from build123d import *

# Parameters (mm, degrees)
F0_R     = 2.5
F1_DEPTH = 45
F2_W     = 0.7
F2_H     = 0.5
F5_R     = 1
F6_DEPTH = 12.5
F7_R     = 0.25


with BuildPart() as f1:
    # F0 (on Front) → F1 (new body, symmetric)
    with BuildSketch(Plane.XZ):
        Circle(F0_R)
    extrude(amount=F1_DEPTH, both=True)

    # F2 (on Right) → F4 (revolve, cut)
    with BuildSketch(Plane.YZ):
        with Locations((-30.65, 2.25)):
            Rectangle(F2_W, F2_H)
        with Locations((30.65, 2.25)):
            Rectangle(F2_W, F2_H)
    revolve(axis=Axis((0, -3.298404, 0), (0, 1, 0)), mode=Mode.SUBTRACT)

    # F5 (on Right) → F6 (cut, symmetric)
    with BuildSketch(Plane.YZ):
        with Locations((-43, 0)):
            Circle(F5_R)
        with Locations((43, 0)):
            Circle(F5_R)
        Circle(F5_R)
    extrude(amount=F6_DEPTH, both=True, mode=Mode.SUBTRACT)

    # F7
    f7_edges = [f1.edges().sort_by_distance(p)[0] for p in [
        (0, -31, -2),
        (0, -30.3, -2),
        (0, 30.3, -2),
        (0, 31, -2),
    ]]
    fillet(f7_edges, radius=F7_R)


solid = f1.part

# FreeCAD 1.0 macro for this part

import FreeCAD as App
import Part
import Sketcher

V = App.Vector
Q = App.Units.Quantity


def edges_at(feature, points):
    """Names of the edges that pass closest to the given points."""
    edges = feature.Shape.Edges
    near = lambda p: min(range(len(edges)), key=lambda i: edges[i].distToShape(Part.Vertex(*p))[0])
    return sorted({f"Edge{near(p) + 1}" for p in points})

doc = App.newDocument("Part")
body = doc.addObject("PartDesign::Body", "Body")

# Sketch on XZ plane
sketch1 = body.newObject("Sketcher::SketchObject", "Sketch")
sketch1.AttachmentSupport = (doc.getObject("XZ_Plane"), [""])
sketch1.MapMode = "FlatFace"
sketch1.addGeometry(Part.Circle(V(0, 0, 0), V(0, 0, 1), 2.5), False)
sketch1.addConstraint(Sketcher.Constraint("Coincident", 0, 3, -1, 1))
sketch1.addConstraint(Sketcher.Constraint("Diameter", 0, Q("5 mm")))
pad1 = body.newObject("PartDesign::Pad", "Pad")
pad1.Profile = sketch1
pad1.Length = 90
pad1.Midplane = True

# Sketch on YZ plane
sketch2 = body.newObject("Sketcher::SketchObject", "Sketch001")
sketch2.AttachmentSupport = (doc.getObject("YZ_Plane"), [""])
sketch2.MapMode = "FlatFace"
sketch2.addGeometry(Part.LineSegment(V(-31, 2.5, 0), V(-31, 2, 0)), False)
sketch2.addGeometry(Part.LineSegment(V(-31, 2, 0), V(-30.3, 2, 0)), False)
sketch2.addGeometry(Part.LineSegment(V(-30.3, 2, 0), V(-30.3, 2.5, 0)), False)
sketch2.addGeometry(Part.LineSegment(V(-30.3, 2.5, 0), V(-31, 2.5, 0)), False)
sketch2.addGeometry(Part.LineSegment(V(30.3, 2.5, 0), V(30.3, 2, 0)), False)
sketch2.addGeometry(Part.LineSegment(V(30.3, 2, 0), V(31, 2, 0)), False)
sketch2.addGeometry(Part.LineSegment(V(31, 2, 0), V(31, 2.5, 0)), False)
sketch2.addGeometry(Part.LineSegment(V(31, 2.5, 0), V(30.3, 2.5, 0)), False)
sketch2.addConstraint(Sketcher.Constraint("Coincident", 0, 2, 1, 1))
sketch2.addConstraint(Sketcher.Constraint("Coincident", 1, 2, 2, 1))
sketch2.addConstraint(Sketcher.Constraint("Coincident", 2, 2, 3, 1))
sketch2.addConstraint(Sketcher.Constraint("Coincident", 3, 2, 0, 1))
sketch2.addConstraint(Sketcher.Constraint("Coincident", 4, 2, 5, 1))
sketch2.addConstraint(Sketcher.Constraint("Coincident", 5, 2, 6, 1))
sketch2.addConstraint(Sketcher.Constraint("Coincident", 6, 2, 7, 1))
sketch2.addConstraint(Sketcher.Constraint("Coincident", 7, 2, 4, 1))
sketch2.addConstraint(Sketcher.Constraint("Vertical", 0))
sketch2.addConstraint(Sketcher.Constraint("Horizontal", 1))
sketch2.addConstraint(Sketcher.Constraint("Vertical", 2))
sketch2.addConstraint(Sketcher.Constraint("Horizontal", 3))
sketch2.addConstraint(Sketcher.Constraint("Vertical", 4))
sketch2.addConstraint(Sketcher.Constraint("Horizontal", 5))
sketch2.addConstraint(Sketcher.Constraint("Vertical", 6))
sketch2.addConstraint(Sketcher.Constraint("Horizontal", 7))
sketch2.addConstraint(Sketcher.Constraint("Symmetric", 1, 2, 4, 2, -2))
sketch2.addConstraint(Sketcher.Constraint("Symmetric", 3, 2, 6, 2, -2))
sketch2.addConstraint(Sketcher.Constraint("DistanceX", 1, 1, 1, 2, Q("0.7 mm")))
sketch2.addConstraint(Sketcher.Constraint("DistanceY", 0, 2, 0, 1, Q("0.5 mm")))
sketch2.addConstraint(Sketcher.Constraint("DistanceX", 0, 2, -1, 1, Q("31 mm")))
sketch2.addConstraint(Sketcher.Constraint("DistanceY", -1, 1, 0, 2, Q("2 mm")))
groove = body.newObject("PartDesign::Groove", "Groove")
groove.Profile = sketch2
groove.ReferenceAxis = (sketch2, ["H_Axis"])
groove.Angle = 360

# Sketch on YZ plane
sketch3 = body.newObject("Sketcher::SketchObject", "Sketch002")
sketch3.AttachmentSupport = (doc.getObject("YZ_Plane"), [""])
sketch3.MapMode = "FlatFace"
sketch3.addGeometry(Part.Circle(V(-43, 0, 0), V(0, 0, 1), 1), False)
sketch3.addGeometry(Part.Circle(V(43, 0, 0), V(0, 0, 1), 1), False)
sketch3.addGeometry(Part.Circle(V(0, 0, 0), V(0, 0, 1), 1), False)
sketch3.addConstraint(Sketcher.Constraint("Coincident", 2, 3, -1, 1))
sketch3.addConstraint(Sketcher.Constraint("Equal", 0, 1))
sketch3.addConstraint(Sketcher.Constraint("Equal", 1, 2))
sketch3.addConstraint(Sketcher.Constraint("Symmetric", 0, 3, 1, 3, -1, 1))
sketch3.addConstraint(Sketcher.Constraint("PointOnObject", 0, 3, -1))
sketch3.addConstraint(Sketcher.Constraint("Diameter", 0, Q("2 mm")))
sketch3.addConstraint(Sketcher.Constraint("DistanceX", 0, 3, -1, 1, Q("43 mm")))
pocket1 = body.newObject("PartDesign::Pocket", "Pocket")
pocket1.Profile = sketch3
pocket1.Length = 25
pocket1.Midplane = True
doc.recompute()

fillet = body.newObject("PartDesign::Fillet", "Fillet")
fillet.Base = (pocket1, edges_at(pocket1, [
    (0, -31, -2),
    (0, -30.3, -2),
    (0, 30.3, -2),
    (0, 31, -2),
]))
fillet.Radius = 0.25

doc.recompute()
